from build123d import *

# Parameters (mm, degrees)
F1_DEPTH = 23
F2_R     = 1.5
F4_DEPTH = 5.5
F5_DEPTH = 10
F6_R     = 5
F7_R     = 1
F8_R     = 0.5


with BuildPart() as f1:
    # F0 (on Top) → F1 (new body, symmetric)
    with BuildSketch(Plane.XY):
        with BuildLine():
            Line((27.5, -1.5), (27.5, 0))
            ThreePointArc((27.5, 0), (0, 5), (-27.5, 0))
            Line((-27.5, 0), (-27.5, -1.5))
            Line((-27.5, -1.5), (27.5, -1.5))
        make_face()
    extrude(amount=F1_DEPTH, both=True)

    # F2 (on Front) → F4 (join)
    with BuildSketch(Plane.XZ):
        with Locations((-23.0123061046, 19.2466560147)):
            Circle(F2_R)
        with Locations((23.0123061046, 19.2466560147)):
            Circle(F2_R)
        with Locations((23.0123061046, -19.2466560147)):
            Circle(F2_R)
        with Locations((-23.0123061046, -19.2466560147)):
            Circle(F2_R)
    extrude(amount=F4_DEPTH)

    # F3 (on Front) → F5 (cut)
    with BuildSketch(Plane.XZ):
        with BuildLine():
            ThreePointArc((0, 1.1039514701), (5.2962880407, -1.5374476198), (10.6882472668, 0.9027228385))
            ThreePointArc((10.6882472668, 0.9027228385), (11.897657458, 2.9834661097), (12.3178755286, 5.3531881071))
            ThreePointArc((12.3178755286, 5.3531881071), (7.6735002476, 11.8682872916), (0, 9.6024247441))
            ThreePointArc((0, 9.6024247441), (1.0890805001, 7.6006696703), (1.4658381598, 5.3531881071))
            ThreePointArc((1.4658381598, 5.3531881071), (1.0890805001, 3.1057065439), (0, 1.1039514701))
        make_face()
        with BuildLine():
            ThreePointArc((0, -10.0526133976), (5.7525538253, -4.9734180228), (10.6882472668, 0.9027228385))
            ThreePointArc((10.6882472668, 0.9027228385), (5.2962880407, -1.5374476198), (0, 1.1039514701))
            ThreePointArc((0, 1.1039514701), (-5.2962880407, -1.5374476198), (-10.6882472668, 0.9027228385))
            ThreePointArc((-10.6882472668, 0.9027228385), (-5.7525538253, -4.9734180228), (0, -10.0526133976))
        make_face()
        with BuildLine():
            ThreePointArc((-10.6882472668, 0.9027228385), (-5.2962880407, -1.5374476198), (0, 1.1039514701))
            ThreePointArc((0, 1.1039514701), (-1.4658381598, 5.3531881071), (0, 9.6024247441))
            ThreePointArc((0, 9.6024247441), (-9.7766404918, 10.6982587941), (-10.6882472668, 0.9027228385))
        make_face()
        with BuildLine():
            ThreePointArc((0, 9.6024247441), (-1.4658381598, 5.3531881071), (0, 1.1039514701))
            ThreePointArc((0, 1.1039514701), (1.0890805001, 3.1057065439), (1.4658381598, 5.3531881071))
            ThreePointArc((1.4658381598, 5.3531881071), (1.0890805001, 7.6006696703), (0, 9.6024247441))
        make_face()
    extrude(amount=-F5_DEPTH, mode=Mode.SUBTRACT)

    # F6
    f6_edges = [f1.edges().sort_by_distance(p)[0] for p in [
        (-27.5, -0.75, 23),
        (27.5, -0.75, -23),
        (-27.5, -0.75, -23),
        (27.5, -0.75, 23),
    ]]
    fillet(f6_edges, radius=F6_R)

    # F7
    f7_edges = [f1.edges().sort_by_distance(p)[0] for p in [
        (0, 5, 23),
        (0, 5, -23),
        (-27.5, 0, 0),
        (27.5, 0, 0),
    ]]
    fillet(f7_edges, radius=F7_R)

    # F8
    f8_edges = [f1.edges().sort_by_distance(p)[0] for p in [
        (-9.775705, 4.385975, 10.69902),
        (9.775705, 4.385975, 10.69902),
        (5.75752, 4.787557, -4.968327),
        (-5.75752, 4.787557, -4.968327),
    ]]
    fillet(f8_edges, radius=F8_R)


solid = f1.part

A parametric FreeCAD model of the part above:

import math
import FreeCAD as App
import Part
import Sketcher

V = App.Vector


def edges_at(feature, points):
    """Names of the edges that pass closest to the given points."""
    edges = feature.Shape.Edges
    near = lambda p: min(range(len(edges)), key=lambda i: edges[i].distToShape(Part.Vertex(*p))[0])
    return sorted({f"Edge{near(p) + 1}" for p in points})

doc = App.newDocument("Part")
body = doc.addObject("PartDesign::Body", "Body")

sketch1 = body.newObject("Sketcher::SketchObject", "Sketch")
sketch1.AttachmentSupport = (doc.getObject("XY_Plane"), [""])
sketch1.MapMode = "FlatFace"
sketch1.addGeometry(Part.LineSegment(V(27.5, -1.5, 0), V(27.5, 0, 0)), False)
sketch1.addGeometry(Part.ArcOfCircle(Part.Circle(V(0, -73.1, 0), V(0, 0, 1), 78.1), math.radians(69), math.radians(111)), False)
sketch1.addGeometry(Part.LineSegment(V(-27.5, 0, 0), V(-27.5, -1.5, 0)), False)
sketch1.addGeometry(Part.LineSegment(V(-27.5, -1.5, 0), V(27.5, -1.5, 0)), False)
sketch1.addConstraint(Sketcher.Constraint("Coincident", 0, 2, 1, 1))
sketch1.addConstraint(Sketcher.Constraint("Coincident", 1, 2, 2, 1))
sketch1.addConstraint(Sketcher.Constraint("Coincident", 2, 2, 3, 1))
sketch1.addConstraint(Sketcher.Constraint("Coincident", 3, 2, 0, 1))
sketch1.addConstraint(Sketcher.Constraint("Vertical", 0))
sketch1.addConstraint(Sketcher.Constraint("Vertical", 2))
sketch1.addConstraint(Sketcher.Constraint("Horizontal", 3))
sketch1.addConstraint(Sketcher.Constraint("Symmetric", 0, 2, 1, 2, -1, 1))
sketch1.addConstraint(Sketcher.Constraint("PointOnObject", 1, 3, -2))
sketch1.addConstraint(Sketcher.Constraint("DistanceX", 3, 1, 3, 2, 55.0))
sketch1.addConstraint(Sketcher.Constraint("DistanceY", 0, 1, 0, 2, 1.5))
sketch1.addConstraint(Sketcher.Constraint("Radius", 1, 78.125))
pad1 = body.newObject("PartDesign::Pad", "Pad")
pad1.Profile = sketch1
pad1.Length = 46
pad1.Midplane = True

sketch2 = body.newObject("Sketcher::SketchObject", "Sketch001")
sketch2.AttachmentSupport = (doc.getObject("XZ_Plane"), [""])
sketch2.MapMode = "FlatFace"
sketch2.addGeometry(Part.Circle(V(-23, 19.2, 0), V(0, 0, 1), 1.5), False)
sketch2.addGeometry(Part.Circle(V(23, 19.2, 0), V(0, 0, 1), 1.5), False)
sketch2.addGeometry(Part.Circle(V(23, -19.2, 0), V(0, 0, 1), 1.5), False)
sketch2.addGeometry(Part.Circle(V(-23, -19.2, 0), V(0, 0, 1), 1.5), False)
sketch2.addConstraint(Sketcher.Constraint("Equal", 0, 1))
sketch2.addConstraint(Sketcher.Constraint("Equal", 1, 2))
sketch2.addConstraint(Sketcher.Constraint("Equal", 2, 3))
sketch2.addConstraint(Sketcher.Constraint("Symmetric", 0, 3, 2, 3, -1, 1))
sketch2.addConstraint(Sketcher.Constraint("Symmetric", 1, 3, 3, 3, -1, 1))
sketch2.addConstraint(Sketcher.Constraint("Symmetric", 0, 3, 1, 3, -2))
sketch2.addConstraint(Sketcher.Constraint("Diameter", 0, 3.0))
sketch2.addConstraint(Sketcher.Constraint("DistanceX", 0, 3, -1, 1, 23.012306))
sketch2.addConstraint(Sketcher.Constraint("DistanceY", -1, 1, 0, 3, 19.246656))
pad2 = body.newObject("PartDesign::Pad", "Pad001")
pad2.Profile = sketch2
pad2.Length = 5.5

sketch3 = body.newObject("Sketcher::SketchObject", "Sketch002")
sketch3.AttachmentSupport = (doc.getObject("XZ_Plane"), [""])
sketch3.MapMode = "FlatFace"
sketch3.addGeometry(Part.ArcOfCircle(Part.Circle(V(5.4, 5.4, 0), V(0, 0, 1), 6.9), math.radians(0), math.radians(142)), False)
sketch3.addGeometry(Part.ArcOfCircle(Part.Circle(V(-5.4, 5.4, 0), V(0, 0, 1), 6.9), math.radians(38), math.radians(220)), False)
sketch3.addGeometry(Part.ArcOfCircle(Part.Circle(V(31.2, 31.1, 0), V(0, 0, 1), 51.6), math.radians(-144.24), math.radians(-127.18)), False)
sketch3.addGeometry(Part.ArcOfCircle(Part.Circle(V(-31.2, 31.1, 0), V(0, 0, 1), 51.6), math.radians(-52.82), math.radians(-35.76)), False)
sketch3.addGeometry(Part.ArcOfCircle(Part.Circle(V(5.4, 5.4, 0), V(0, 0, 1), 6.9), math.radians(-40), math.radians(0)), False)
sketch3.addConstraint(Sketcher.Constraint("Coincident", 0, 2, 1, 1))
sketch3.addConstraint(Sketcher.Constraint("Coincident", 1, 2, 2, 1))
sketch3.addConstraint(Sketcher.Constraint("Coincident", 2, 2, 3, 1))
sketch3.addConstraint(Sketcher.Constraint("Coincident", 3, 2, 4, 1))
sketch3.addConstraint(Sketcher.Constraint("Tangent", 4, 2, 0, 1))
sketch3.addConstraint(Sketcher.Constraint("Equal", 0, 1))
sketch3.addConstraint(Sketcher.Constraint("Equal", 2, 3))
sketch3.addConstraint(Sketcher.Constraint("Equal", 1, 4))
sketch3.addConstraint(Sketcher.Constraint("Symmetric", 0, 3, 1, 3, -2))
sketch3.addConstraint(Sketcher.Constraint("Symmetric", 2, 3, 3, 3, -2))
sketch3.addConstraint(Sketcher.Constraint("Horizontal", 1, 3, 4, 2))
sketch3.addConstraint(Sketcher.Constraint("Radius", 2, 51.602761))
sketch3.addConstraint(Sketcher.Constraint("Radius", 0, 6.891857))
sketch3.addConstraint(Sketcher.Constraint("DistanceY", 1, 2, 0, 2, 8.699702))
sketch3.addConstraint(Sketcher.Constraint("DistanceY", 2, 2, 0, 3, 15.405802))
sketch3.addConstraint(Sketcher.Constraint("DistanceX", -1, 1, 0, 3, 5.426019))
sketch3.addConstraint(Sketcher.Constraint("DistanceY", -1, 1, 0, 3, 5.353188))
pocket1 = body.newObject("PartDesign::Pocket", "Pocket")
pocket1.Profile = sketch3
pocket1.Length = 10
doc.recompute()

fillet = body.newObject("PartDesign::Fillet", "Fillet")
fillet.Base = (pocket1, edges_at(pocket1, [
    (-27.5, -0.75, 23),
    (27.5, -0.75, -23),
    (-27.5, -0.75, -23),
    (27.5, -0.75, 23),
]))
fillet.Radius = 5
doc.recompute()

fillet2 = body.newObject("PartDesign::Fillet", "Fillet001")
fillet2.Base = (fillet, edges_at(fillet, [
    (0, 5, 23),
    (0, 5, -23),
    (-27.5, 0, 0),
    (27.5, 0, 0),
]))
fillet2.Radius = 1
doc.recompute()

fillet3 = body.newObject("PartDesign::Fillet", "Fillet002")
fillet3.Base = (fillet2, edges_at(fillet2, [
    (-9.776, 4.386, 10.699),
    (7.68, 4.622, 11.866),
    (5.758, 4.788, -4.968),
    (-5.758, 4.788, -4.968),
]))
fillet3.Radius = 0.5

doc.recompute()
